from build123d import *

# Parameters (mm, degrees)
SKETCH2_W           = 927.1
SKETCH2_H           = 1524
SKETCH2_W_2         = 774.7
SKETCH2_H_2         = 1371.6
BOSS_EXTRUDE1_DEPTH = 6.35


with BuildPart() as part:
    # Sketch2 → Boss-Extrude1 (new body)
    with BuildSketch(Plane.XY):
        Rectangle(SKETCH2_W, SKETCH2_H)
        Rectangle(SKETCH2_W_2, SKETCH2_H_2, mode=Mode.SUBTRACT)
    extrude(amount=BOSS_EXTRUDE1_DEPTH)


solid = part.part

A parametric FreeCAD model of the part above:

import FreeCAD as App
import Part
import Sketcher

V = App.Vector
Q = App.Units.Quantity


def add_polygon(sketch, points):
    """Adds a closed chain of lines whose ends are joined by coincident constraints."""
    first, n = sketch.GeometryCount, len(points)
    for a, b in zip(points, points[1:] + points[:1]):
        sketch.addGeometry(Part.LineSegment(App.Vector(*a, 0), App.Vector(*b, 0)), False)
    for i in range(n):
        sketch.addConstraint(Sketcher.Constraint("Coincident", first + i, 2, first + (i + 1) % n, 1))

doc = App.newDocument("Part")
params = doc.addObject("Spreadsheet::Sheet", "Params")
for row, (alias, value) in enumerate([
    ("sketch1_height", "60 in"),
    ("sketch1_height2", "54 in"),
    ("sketch1_width", "36.5 in"),
    ("sketch1_width2", "30.5 in"),
    ("pad1_length", "0.25 in"),
], start=1):
    params.set(f"A{row}", alias)
    params.set(f"B{row}", "=" + value)
    params.setAlias(f"B{row}", alias)

body = doc.addObject("PartDesign::Body", "Body")

# Sketch on XY plane
sketch1 = body.newObject("Sketcher::SketchObject", "Sketch")
sketch1.AttachmentSupport = (doc.getObject("XY_Plane"), [""])
sketch1.MapMode = "FlatFace"
add_polygon(sketch1, [(-463.55, 762), (-463.55, -762), (463.55, -762), (463.55, 762)])  # lines 0-3
add_polygon(sketch1, [(387.35, -685.8), (-387.35, -685.8), (-387.35, 685.8), (387.35, 685.8)])  # lines 4-7
sketch1.addConstraint(Sketcher.Constraint("Vertical", 0))
sketch1.addConstraint(Sketcher.Constraint("Horizontal", 1))
sketch1.addConstraint(Sketcher.Constraint("Vertical", 2))
sketch1.addConstraint(Sketcher.Constraint("Horizontal", 3))
sketch1.addConstraint(Sketcher.Constraint("Horizontal", 4))
sketch1.addConstraint(Sketcher.Constraint("Vertical", 5))
sketch1.addConstraint(Sketcher.Constraint("Horizontal", 6))
sketch1.addConstraint(Sketcher.Constraint("Vertical", 7))
sketch1.addConstraint(Sketcher.Constraint("Symmetric", 0, 2, 2, 2, -1, 1))
sketch1.addConstraint(Sketcher.Constraint("Symmetric", 4, 2, 6, 2, -1, 1))
sketch1.addConstraint(Sketcher.Constraint("DistanceY", 0, 2, 0, 1, Q("60 in")))
sketch1.addConstraint(Sketcher.Constraint("DistanceY", 5, 1, 5, 2, Q("54 in")))
sketch1.addConstraint(Sketcher.Constraint("DistanceX", 1, 1, 1, 2, Q("36.5 in")))
sketch1.addConstraint(Sketcher.Constraint("DistanceX", 4, 2, 4, 1, Q("30.5 in")))
sketch1.setExpression("Constraints[18]", "Params.sketch1_height")
sketch1.setExpression("Constraints[19]", "Params.sketch1_height2")
sketch1.setExpression("Constraints[20]", "Params.sketch1_width")
sketch1.setExpression("Constraints[21]", "Params.sketch1_width2")
pad1 = body.newObject("PartDesign::Pad", "Pad")
pad1.Profile = sketch1
pad1.setExpression("Length", "Params.pad1_length")

doc.recompute()
